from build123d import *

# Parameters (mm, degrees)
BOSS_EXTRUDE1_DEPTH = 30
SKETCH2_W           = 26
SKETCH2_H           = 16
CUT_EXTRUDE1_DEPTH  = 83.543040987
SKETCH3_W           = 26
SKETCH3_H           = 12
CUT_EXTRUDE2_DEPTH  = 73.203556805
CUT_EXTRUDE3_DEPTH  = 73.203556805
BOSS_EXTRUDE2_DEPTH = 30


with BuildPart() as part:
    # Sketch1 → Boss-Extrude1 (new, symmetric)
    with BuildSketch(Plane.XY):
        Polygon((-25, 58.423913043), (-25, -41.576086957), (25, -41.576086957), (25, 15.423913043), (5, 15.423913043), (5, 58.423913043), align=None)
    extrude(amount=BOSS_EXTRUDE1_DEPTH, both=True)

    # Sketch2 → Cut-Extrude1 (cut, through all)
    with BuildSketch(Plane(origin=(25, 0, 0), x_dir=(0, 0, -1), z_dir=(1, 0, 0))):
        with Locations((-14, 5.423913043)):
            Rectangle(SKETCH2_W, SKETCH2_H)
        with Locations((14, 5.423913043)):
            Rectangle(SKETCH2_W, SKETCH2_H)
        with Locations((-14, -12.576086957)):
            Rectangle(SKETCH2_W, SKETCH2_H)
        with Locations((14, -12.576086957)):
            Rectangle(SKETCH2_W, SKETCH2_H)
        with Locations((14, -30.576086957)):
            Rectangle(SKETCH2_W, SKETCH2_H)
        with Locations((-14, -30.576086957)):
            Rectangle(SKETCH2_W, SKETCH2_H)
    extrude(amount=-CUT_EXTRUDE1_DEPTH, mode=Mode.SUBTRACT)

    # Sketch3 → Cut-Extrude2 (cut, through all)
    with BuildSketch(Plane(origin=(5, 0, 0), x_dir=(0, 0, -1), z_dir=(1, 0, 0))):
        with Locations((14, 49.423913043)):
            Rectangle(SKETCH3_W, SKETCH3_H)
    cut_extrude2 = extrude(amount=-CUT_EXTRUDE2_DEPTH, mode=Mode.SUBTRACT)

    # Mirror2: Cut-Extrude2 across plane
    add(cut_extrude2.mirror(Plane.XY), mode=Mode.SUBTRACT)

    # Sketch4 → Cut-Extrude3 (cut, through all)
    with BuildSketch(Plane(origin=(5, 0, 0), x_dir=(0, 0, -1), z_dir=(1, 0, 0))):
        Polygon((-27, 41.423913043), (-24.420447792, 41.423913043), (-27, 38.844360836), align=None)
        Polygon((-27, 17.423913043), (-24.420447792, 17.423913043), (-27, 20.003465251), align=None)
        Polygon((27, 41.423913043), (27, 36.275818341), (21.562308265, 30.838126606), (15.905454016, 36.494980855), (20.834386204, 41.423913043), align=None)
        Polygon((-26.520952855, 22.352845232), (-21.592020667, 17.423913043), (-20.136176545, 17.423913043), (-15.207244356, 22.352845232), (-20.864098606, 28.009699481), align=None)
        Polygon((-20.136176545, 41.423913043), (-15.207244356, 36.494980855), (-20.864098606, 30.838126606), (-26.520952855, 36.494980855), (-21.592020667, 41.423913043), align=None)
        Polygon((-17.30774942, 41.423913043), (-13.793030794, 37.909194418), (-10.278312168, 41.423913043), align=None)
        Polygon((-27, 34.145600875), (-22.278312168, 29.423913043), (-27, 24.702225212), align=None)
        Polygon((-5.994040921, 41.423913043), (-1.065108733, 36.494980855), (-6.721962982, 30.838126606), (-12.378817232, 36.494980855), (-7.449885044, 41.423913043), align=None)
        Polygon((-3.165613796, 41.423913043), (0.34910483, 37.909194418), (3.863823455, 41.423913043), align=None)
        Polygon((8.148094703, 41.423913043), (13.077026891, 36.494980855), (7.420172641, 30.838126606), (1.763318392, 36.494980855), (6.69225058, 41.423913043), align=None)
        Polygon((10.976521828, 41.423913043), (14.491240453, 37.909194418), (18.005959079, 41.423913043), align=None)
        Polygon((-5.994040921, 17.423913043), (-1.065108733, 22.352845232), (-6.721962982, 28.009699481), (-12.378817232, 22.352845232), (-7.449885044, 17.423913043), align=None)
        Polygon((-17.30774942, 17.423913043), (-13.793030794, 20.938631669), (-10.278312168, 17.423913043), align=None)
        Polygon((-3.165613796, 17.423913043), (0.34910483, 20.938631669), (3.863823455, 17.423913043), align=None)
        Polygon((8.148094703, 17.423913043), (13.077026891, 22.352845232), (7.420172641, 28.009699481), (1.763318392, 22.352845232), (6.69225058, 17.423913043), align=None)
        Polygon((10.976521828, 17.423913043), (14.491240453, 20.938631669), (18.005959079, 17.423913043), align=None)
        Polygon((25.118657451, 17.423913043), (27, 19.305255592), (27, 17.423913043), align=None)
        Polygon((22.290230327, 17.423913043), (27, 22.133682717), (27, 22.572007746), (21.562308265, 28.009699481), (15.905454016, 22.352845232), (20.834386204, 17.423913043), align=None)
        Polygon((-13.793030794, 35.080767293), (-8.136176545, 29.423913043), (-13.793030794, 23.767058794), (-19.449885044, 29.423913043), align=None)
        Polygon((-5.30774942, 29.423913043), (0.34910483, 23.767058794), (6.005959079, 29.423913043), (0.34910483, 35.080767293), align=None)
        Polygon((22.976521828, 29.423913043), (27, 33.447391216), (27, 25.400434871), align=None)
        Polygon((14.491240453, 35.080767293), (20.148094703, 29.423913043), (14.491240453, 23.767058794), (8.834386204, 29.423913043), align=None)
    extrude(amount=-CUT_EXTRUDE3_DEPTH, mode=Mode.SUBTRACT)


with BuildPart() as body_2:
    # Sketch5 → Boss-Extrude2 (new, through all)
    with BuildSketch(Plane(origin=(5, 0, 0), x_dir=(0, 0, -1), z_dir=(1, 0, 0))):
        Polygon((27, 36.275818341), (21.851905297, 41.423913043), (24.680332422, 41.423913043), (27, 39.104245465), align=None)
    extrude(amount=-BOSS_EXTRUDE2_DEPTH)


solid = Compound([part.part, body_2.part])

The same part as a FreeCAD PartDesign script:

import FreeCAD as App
import Part
import Sketcher

V = App.Vector

doc = App.newDocument("Part")
body = doc.addObject("PartDesign::Body", "Body")

# Sketch on XY plane
sketch1 = body.newObject("Sketcher::SketchObject", "Sketch")
sketch1.AttachmentSupport = (doc.getObject("XY_Plane"), [""])
sketch1.MapMode = "FlatFace"
sketch1.addGeometry([
    Part.LineSegment(V(-25, 58, 0), V(-25, -42, 0)),  # 0
    Part.LineSegment(V(-25, -42, 0), V(25, -42, 0)),  # 1
    Part.LineSegment(V(25, -42, 0), V(25, 15, 0)),  # 2
    Part.LineSegment(V(25, 15, 0), V(5, 15, 0)),  # 3
    Part.LineSegment(V(5, 15, 0), V(5, 58, 0)),  # 4
    Part.LineSegment(V(5, 58, 0), V(-25, 58, 0)),  # 5
], False)
sketch1.addConstraint([
    Sketcher.Constraint("Coincident", 0, 2, 1, 1),
    Sketcher.Constraint("Coincident", 1, 2, 2, 1),
    Sketcher.Constraint("Coincident", 2, 2, 3, 1),
    Sketcher.Constraint("Coincident", 3, 2, 4, 1),
    Sketcher.Constraint("Coincident", 4, 2, 5, 1),
    Sketcher.Constraint("Coincident", 5, 2, 0, 1),
    Sketcher.Constraint("Vertical", 0),
    Sketcher.Constraint("Horizontal", 1),
    Sketcher.Constraint("Vertical", 2),
    Sketcher.Constraint("Horizontal", 3),
    Sketcher.Constraint("Vertical", 4),
    Sketcher.Constraint("Horizontal", 5),
    Sketcher.Constraint("DistanceX", 1, 1, 1, 2, 50.0),
    Sketcher.Constraint("DistanceX", 3, 2, 3, 1, 20.0),
    Sketcher.Constraint("DistanceY", 0, 2, 0, 1, 100.0),
    Sketcher.Constraint("DistanceY", 2, 1, 2, 2, 57.0),
    Sketcher.Constraint("DistanceX", 0, 2, -1, 1, 25.0),
    Sketcher.Constraint("DistanceY", 0, 2, -1, 1, 41.576087),
])
pad1 = body.newObject("PartDesign::Pad", "Pad")
pad1.Profile = sketch1
pad1.Length = 60
pad1.Midplane = True

# Sketch on YZ plane
sketch2 = body.newObject("Sketcher::SketchObject", "Sketch001")
sketch2.AttachmentSupport = (doc.getObject("YZ_Plane"), [""])
sketch2.MapMode = "FlatFace"
sketch2.AttachmentOffset = App.Placement(V(0, 0, 25), App.Rotation())
sketch2.addGeometry([
    Part.LineSegment(V(13, 27, 0), V(-3, 27, 0)),  # 0
    Part.LineSegment(V(-3, 27, 0), V(-3, 1, 0)),  # 1
    Part.LineSegment(V(-3, 1, 0), V(13, 1, 0)),  # 2
    Part.LineSegment(V(13, 1, 0), V(13, 27, 0)),  # 3
    Part.LineSegment(V(13, -1, 0), V(-3, -1, 0)),  # 4
    Part.LineSegment(V(-3, -1, 0), V(-3, -27, 0)),  # 5
    Part.LineSegment(V(-3, -27, 0), V(13, -27, 0)),  # 6
    Part.LineSegment(V(13, -27, 0), V(13, -1, 0)),  # 7
    Part.LineSegment(V(-5, 27, 0), V(-21, 27, 0)),  # 8
    Part.LineSegment(V(-21, 27, 0), V(-21, 1, 0)),  # 9
    Part.LineSegment(V(-21, 1, 0), V(-5, 1, 0)),  # 10
    Part.LineSegment(V(-5, 1, 0), V(-5, 27, 0)),  # 11
    Part.LineSegment(V(-5, -1, 0), V(-21, -1, 0)),  # 12
    Part.LineSegment(V(-21, -1, 0), V(-21, -27, 0)),  # 13
    Part.LineSegment(V(-21, -27, 0), V(-5, -27, 0)),  # 14
    Part.LineSegment(V(-5, -27, 0), V(-5, -1, 0)),  # 15
    Part.LineSegment(V(-23, -1, 0), V(-39, -1, 0)),  # 16
    Part.LineSegment(V(-39, -1, 0), V(-39, -27, 0)),  # 17
    Part.LineSegment(V(-39, -27, 0), V(-23, -27, 0)),  # 18
    Part.LineSegment(V(-23, -27, 0), V(-23, -1, 0)),  # 19
    Part.LineSegment(V(-23, 27, 0), V(-39, 27, 0)),  # 20
    Part.LineSegment(V(-39, 27, 0), V(-39, 1, 0)),  # 21
    Part.LineSegment(V(-39, 1, 0), V(-23, 1, 0)),  # 22
    Part.LineSegment(V(-23, 1, 0), V(-23, 27, 0)),  # 23
], False)
sketch2.addConstraint([
    Sketcher.Constraint("Coincident", 0, 2, 1, 1),
    Sketcher.Constraint("Coincident", 1, 2, 2, 1),
    Sketcher.Constraint("Coincident", 2, 2, 3, 1),
    Sketcher.Constraint("Coincident", 3, 2, 0, 1),
    Sketcher.Constraint("Coincident", 4, 2, 5, 1),
    Sketcher.Constraint("Coincident", 5, 2, 6, 1),
    Sketcher.Constraint("Coincident", 6, 2, 7, 1),
    Sketcher.Constraint("Coincident", 7, 2, 4, 1),
    Sketcher.Constraint("Coincident", 8, 2, 9, 1),
    Sketcher.Constraint("Coincident", 9, 2, 10, 1),
    Sketcher.Constraint("Coincident", 10, 2, 11, 1),
    Sketcher.Constraint("Coincident", 11, 2, 8, 1),
    Sketcher.Constraint("Coincident", 12, 2, 13, 1),
    Sketcher.Constraint("Coincident", 13, 2, 14, 1),
    Sketcher.Constraint("Coincident", 14, 2, 15, 1),
    Sketcher.Constraint("Coincident", 15, 2, 12, 1),
    Sketcher.Constraint("Coincident", 16, 2, 17, 1),
    Sketcher.Constraint("Coincident", 17, 2, 18, 1),
    Sketcher.Constraint("Coincident", 18, 2, 19, 1),
    Sketcher.Constraint("Coincident", 19, 2, 16, 1),
    Sketcher.Constraint("Coincident", 20, 2, 21, 1),
    Sketcher.Constraint("Coincident", 21, 2, 22, 1),
    Sketcher.Constraint("Coincident", 22, 2, 23, 1),
    Sketcher.Constraint("Coincident", 23, 2, 20, 1),
    Sketcher.Constraint("Horizontal", 0),
    Sketcher.Constraint("Vertical", 1),
    Sketcher.Constraint("Horizontal", 2),
    Sketcher.Constraint("Vertical", 3),
    Sketcher.Constraint("Horizontal", 4),
    Sketcher.Constraint("Vertical", 5),
    Sketcher.Constraint("Horizontal", 6),
    Sketcher.Constraint("Vertical", 7),
    Sketcher.Constraint("Horizontal", 8),
    Sketcher.Constraint("Vertical", 9),
    Sketcher.Constraint("Horizontal", 10),
    Sketcher.Constraint("Vertical", 11),
    Sketcher.Constraint("Horizontal", 12),
    Sketcher.Constraint("Vertical", 13),
    Sketcher.Constraint("Horizontal", 14),
    Sketcher.Constraint("Vertical", 15),
    Sketcher.Constraint("Horizontal", 16),
    Sketcher.Constraint("Vertical", 17),
    Sketcher.Constraint("Horizontal", 18),
    Sketcher.Constraint("Vertical", 19),
    Sketcher.Constraint("Horizontal", 20),
    Sketcher.Constraint("Vertical", 21),
    Sketcher.Constraint("Horizontal", 22),
    Sketcher.Constraint("Vertical", 23),
    Sketcher.Constraint("Symmetric", 1, 2, 4, 2, -1),
    Sketcher.Constraint("Symmetric", 3, 2, 6, 2, -1),
    Sketcher.Constraint("Symmetric", 9, 2, 12, 2, -1),
    Sketcher.Constraint("Symmetric", 11, 2, 14, 2, -1),
    Sketcher.Constraint("Symmetric", 17, 2, 20, 2, -1),
    Sketcher.Constraint("Symmetric", 19, 2, 22, 2, -1),
    Sketcher.Constraint("Horizontal", 3, 2, 8, 2),
    Sketcher.Constraint("Horizontal", 2, 2, 9, 2),
    Sketcher.Constraint("Horizontal", 15, 2, 16, 2),
    Sketcher.Constraint("Horizontal", 14, 2, 17, 2),
    Sketcher.Constraint("Equal", 6, 8),
    Sketcher.Constraint("Equal", 14, 16),
    Sketcher.Constraint("DistanceX", 0, 2, 0, 1, 16.0),
    Sketcher.Constraint("DistanceY", 1, 2, 1, 1, 26.0),
    Sketcher.Constraint("DistanceY", -1, 1, 0, 2, 27.0),
    Sketcher.Constraint("DistanceX", 8, 2, 0, 2, 18.0),
    Sketcher.Constraint("DistanceX", 16, 2, 12, 2, 18.0),
    Sketcher.Constraint("DistanceX", 0, 2, -1, 1, 2.576087),
])
pocket1 = body.newObject("PartDesign::Pocket", "Pocket")
pocket1.Profile = sketch2
pocket1.Type = "ThroughAll"

# Sketch on YZ plane
sketch3 = body.newObject("Sketcher::SketchObject", "Sketch002")
sketch3.AttachmentSupport = (doc.getObject("YZ_Plane"), [""])
sketch3.MapMode = "FlatFace"
sketch3.AttachmentOffset = App.Placement(V(0, 0, 5), App.Rotation())
sketch3.addGeometry([
    Part.LineSegment(V(55, -1, 0), V(43, -1, 0)),
    Part.LineSegment(V(43, -1, 0), V(43, -27, 0)),
    Part.LineSegment(V(43, -27, 0), V(55, -27, 0)),
    Part.LineSegment(V(55, -27, 0), V(55, -1, 0)),
], False)
sketch3.addConstraint([
    Sketcher.Constraint("Coincident", 0, 2, 1, 1),
    Sketcher.Constraint("Coincident", 1, 2, 2, 1),
    Sketcher.Constraint("Coincident", 2, 2, 3, 1),
    Sketcher.Constraint("Coincident", 3, 2, 0, 1),
    Sketcher.Constraint("Horizontal", 0),
    Sketcher.Constraint("Vertical", 1),
    Sketcher.Constraint("Horizontal", 2),
    Sketcher.Constraint("Vertical", 3),
    Sketcher.Constraint("DistanceX", 0, 2, 0, 1, 12.0),
    Sketcher.Constraint("DistanceY", 1, 2, 1, 1, 26.0),
    Sketcher.Constraint("DistanceY", 0, 2, -1, 1, 1.0),
    Sketcher.Constraint("DistanceX", -1, 1, 0, 2, 43.423913),
])
pocket2 = body.newObject("PartDesign::Pocket", "Pocket001")
pocket2.Profile = sketch3
pocket2.Type = "ThroughAll"
doc.recompute()

mirrored = body.newObject("PartDesign::Mirrored", "Mirrored")
mirrored.Originals = [pocket2]
mirrored.MirrorPlane = (doc.getObject("XY_Plane"), [""])
body.Tip = mirrored

# Sketch on YZ plane
sketch4 = body.newObject("Sketcher::SketchObject", "Sketch003")
sketch4.AttachmentSupport = (doc.getObject("YZ_Plane"), [""])
sketch4.MapMode = "FlatFace"
sketch4.AttachmentOffset = App.Placement(V(0, 0, 5), App.Rotation())
sketch4.addGeometry([
    Part.LineSegment(V(41.42, 24.42, 0), V(41.42, 27, 0)),  # 0
    Part.LineSegment(V(41.42, 27, 0), V(38.84, 27, 0)),  # 1
    Part.LineSegment(V(38.84, 27, 0), V(41.42, 24.42, 0)),  # 2
    Part.LineSegment(V(17.42, 27, 0), V(17.42, 24.42, 0)),  # 3
    Part.LineSegment(V(17.42, 24.42, 0), V(20, 27, 0)),  # 4
    Part.LineSegment(V(20, 27, 0), V(17.42, 27, 0)),  # 5
    Part.LineSegment(V(36.28, -27, 0), V(41.42, -27, 0)),  # 6
    Part.LineSegment(V(41.42, -27, 0), V(41.42, -20.83, 0)),  # 7
    Part.LineSegment(V(41.42, -20.83, 0), V(36.49, -15.91, 0)),  # 8
    Part.LineSegment(V(36.49, -15.91, 0), V(30.84, -21.56, 0)),  # 9
    Part.LineSegment(V(30.84, -21.56, 0), V(36.28, -27, 0)),  # 10
    Part.LineSegment(V(22.35, 26.52, 0), V(17.42, 21.59, 0)),  # 11
    Part.LineSegment(V(17.42, 21.59, 0), V(17.42, 20.14, 0)),  # 12
    Part.LineSegment(V(17.42, 20.14, 0), V(22.35, 15.21, 0)),  # 13
    Part.LineSegment(V(22.35, 15.21, 0), V(28.01, 20.86, 0)),  # 14
    Part.LineSegment(V(28.01, 20.86, 0), V(22.35, 26.52, 0)),  # 15
    Part.LineSegment(V(36.49, 15.21, 0), V(41.42, 20.14, 0)),  # 16
    Part.LineSegment(V(41.42, 20.14, 0), V(41.42, 21.59, 0)),  # 17
    Part.LineSegment(V(41.42, 21.59, 0), V(36.49, 26.52, 0)),  # 18
    Part.LineSegment(V(36.49, 26.52, 0), V(30.84, 20.86, 0)),  # 19
    Part.LineSegment(V(30.84, 20.86, 0), V(36.49, 15.21, 0)),  # 20
    Part.LineSegment(V(41.42, 17.31, 0), V(37.91, 13.79, 0)),  # 21
    Part.LineSegment(V(37.91, 13.79, 0), V(41.42, 10.28, 0)),  # 22
    Part.LineSegment(V(41.42, 10.28, 0), V(41.42, 17.31, 0)),  # 23
    Part.LineSegment(V(29.42, 22.28, 0), V(34.15, 27, 0)),  # 24
    Part.LineSegment(V(34.15, 27, 0), V(24.7, 27, 0)),  # 25
    Part.LineSegment(V(24.7, 27, 0), V(29.42, 22.28, 0)),  # 26
    Part.LineSegment(V(36.49, 1.07, 0), V(41.42, 5.99, 0)),  # 27
    Part.LineSegment(V(41.42, 5.99, 0), V(41.42, 7.45, 0)),  # 28
    Part.LineSegment(V(41.42, 7.45, 0), V(36.49, 12.38, 0)),  # 29
    Part.LineSegment(V(36.49, 12.38, 0), V(30.84, 6.72, 0)),  # 30
    Part.LineSegment(V(30.84, 6.72, 0), V(36.49, 1.07, 0)),  # 31
    Part.LineSegment(V(41.42, 3.17, 0), V(37.91, -0.35, 0)),  # 32
    Part.LineSegment(V(37.91, -0.35, 0), V(41.42, -3.86, 0)),  # 33
    Part.LineSegment(V(41.42, -3.86, 0), V(41.42, 3.17, 0)),  # 34
    Part.LineSegment(V(36.49, -13.08, 0), V(41.42, -8.15, 0)),  # 35
    Part.LineSegment(V(41.42, -8.15, 0), V(41.42, -6.69, 0)),  # 36
    Part.LineSegment(V(41.42, -6.69, 0), V(36.49, -1.76, 0)),  # 37
    Part.LineSegment(V(36.49, -1.76, 0), V(30.84, -7.42, 0)),  # 38
    Part.LineSegment(V(30.84, -7.42, 0), V(36.49, -13.08, 0)),  # 39
    Part.LineSegment(V(41.42, -10.98, 0), V(37.91, -14.49, 0)),  # 40
    Part.LineSegment(V(37.91, -14.49, 0), V(41.42, -18.01, 0)),  # 41
    Part.LineSegment(V(41.42, -18.01, 0), V(41.42, -10.98, 0)),  # 42
    Part.LineSegment(V(17.42, 5.99, 0), V(22.35, 1.07, 0)),  # 43
    Part.LineSegment(V(22.35, 1.07, 0), V(28.01, 6.72, 0)),  # 44
    Part.LineSegment(V(28.01, 6.72, 0), V(22.35, 12.38, 0)),  # 45
    Part.LineSegment(V(22.35, 12.38, 0), V(17.42, 7.45, 0)),  # 46
    Part.LineSegment(V(17.42, 7.45, 0), V(17.42, 5.99, 0)),  # 47
    Part.LineSegment(V(20.94, 13.79, 0), V(17.42, 17.31, 0)),  # 48
    Part.LineSegment(V(17.42, 17.31, 0), V(17.42, 10.28, 0)),  # 49
    Part.LineSegment(V(17.42, 10.28, 0), V(20.94, 13.79, 0)),  # 50
    Part.LineSegment(V(20.94, -0.35, 0), V(17.42, 3.17, 0)),  # 51
    Part.LineSegment(V(17.42, 3.17, 0), V(17.42, -3.86, 0)),  # 52
    Part.LineSegment(V(17.42, -3.86, 0), V(20.94, -0.35, 0)),  # 53
    Part.LineSegment(V(17.42, -8.15, 0), V(22.35, -13.08, 0)),  # 54
    Part.LineSegment(V(22.35, -13.08, 0), V(28.01, -7.42, 0)),  # 55
    Part.LineSegment(V(28.01, -7.42, 0), V(22.35, -1.76, 0)),  # 56
    Part.LineSegment(V(22.35, -1.76, 0), V(17.42, -6.69, 0)),  # 57
    Part.LineSegment(V(17.42, -6.69, 0), V(17.42, -8.15, 0)),  # 58
    Part.LineSegment(V(20.94, -14.49, 0), V(17.42, -10.98, 0)),  # 59
    Part.LineSegment(V(17.42, -10.98, 0), V(17.42, -18.01, 0)),  # 60
    Part.LineSegment(V(17.42, -18.01, 0), V(20.94, -14.49, 0)),  # 61
    Part.LineSegment(V(19.31, -27, 0), V(17.42, -25.12, 0)),  # 62
    Part.LineSegment(V(17.42, -25.12, 0), V(17.42, -27, 0)),  # 63
    Part.LineSegment(V(17.42, -27, 0), V(19.31, -27, 0)),  # 64
    Part.LineSegment(V(17.42, -22.29, 0), V(22.13, -27, 0)),  # 65
    Part.LineSegment(V(22.13, -27, 0), V(22.57, -27, 0)),  # 66
    Part.LineSegment(V(22.57, -27, 0), V(28.01, -21.56, 0)),  # 67
    Part.LineSegment(V(28.01, -21.56, 0), V(22.35, -15.91, 0)),  # 68
    Part.LineSegment(V(22.35, -15.91, 0), V(17.42, -20.83, 0)),  # 69
    Part.LineSegment(V(17.42, -20.83, 0), V(17.42, -22.29, 0)),  # 70
    Part.LineSegment(V(29.42, 8.14, 0), V(35.08, 13.79, 0)),  # 71
    Part.LineSegment(V(35.08, 13.79, 0), V(29.42, 19.45, 0)),  # 72
    Part.LineSegment(V(29.42, 19.45, 0), V(23.77, 13.79, 0)),  # 73
    Part.LineSegment(V(23.77, 13.79, 0), V(29.42, 8.14, 0)),  # 74
    Part.LineSegment(V(29.42, 5.31, 0), V(23.77, -0.35, 0)),  # 75
    Part.LineSegment(V(23.77, -0.35, 0), V(29.42, -6.01, 0)),  # 76
    Part.LineSegment(V(29.42, -6.01, 0), V(35.08, -0.35, 0)),  # 77
    Part.LineSegment(V(35.08, -0.35, 0), V(29.42, 5.31, 0)),  # 78
    Part.LineSegment(V(33.45, -27, 0), V(29.42, -22.98, 0)),  # 79
    Part.LineSegment(V(29.42, -22.98, 0), V(25.4, -27, 0)),  # 80
    Part.LineSegment(V(25.4, -27, 0), V(33.45, -27, 0)),  # 81
    Part.LineSegment(V(29.42, -20.15, 0), V(35.08, -14.49, 0)),  # 82
    Part.LineSegment(V(35.08, -14.49, 0), V(29.42, -8.83, 0)),  # 83
    Part.LineSegment(V(29.42, -8.83, 0), V(23.77, -14.49, 0)),  # 84
    Part.LineSegment(V(23.77, -14.49, 0), V(29.42, -20.15, 0)),  # 85
], False)
sketch4.addConstraint([
    Sketcher.Constraint("Coincident", 0, 2, 1, 1),
    Sketcher.Constraint("Coincident", 1, 2, 2, 1),
    Sketcher.Constraint("Coincident", 2, 2, 0, 1),
    Sketcher.Constraint("Coincident", 3, 2, 4, 1),
    Sketcher.Constraint("Coincident", 4, 2, 5, 1),
    Sketcher.Constraint("Coincident", 5, 2, 3, 1),
    Sketcher.Constraint("Coincident", 6, 2, 7, 1),
    Sketcher.Constraint("Coincident", 7, 2, 8, 1),
    Sketcher.Constraint("Coincident", 8, 2, 9, 1),
    Sketcher.Constraint("Coincident", 9, 2, 10, 1),
    Sketcher.Constraint("Coincident", 10, 2, 6, 1),
    Sketcher.Constraint("Coincident", 11, 2, 12, 1),
    Sketcher.Constraint("Coincident", 12, 2, 13, 1),
    Sketcher.Constraint("Coincident", 13, 2, 14, 1),
    Sketcher.Constraint("Coincident", 14, 2, 15, 1),
    Sketcher.Constraint("Coincident", 15, 2, 11, 1),
    Sketcher.Constraint("Coincident", 16, 2, 17, 1),
    Sketcher.Constraint("Coincident", 17, 2, 18, 1),
    Sketcher.Constraint("Coincident", 18, 2, 19, 1),
    Sketcher.Constraint("Coincident", 19, 2, 20, 1),
    Sketcher.Constraint("Coincident", 20, 2, 16, 1),
    Sketcher.Constraint("Coincident", 21, 2, 22, 1),
    Sketcher.Constraint("Coincident", 22, 2, 23, 1),
    Sketcher.Constraint("Coincident", 23, 2, 21, 1),
    Sketcher.Constraint("Coincident", 24, 2, 25, 1),
    Sketcher.Constraint("Coincident", 25, 2, 26, 1),
    Sketcher.Constraint("Coincident", 26, 2, 24, 1),
    Sketcher.Constraint("Coincident", 27, 2, 28, 1),
    Sketcher.Constraint("Coincident", 28, 2, 29, 1),
    Sketcher.Constraint("Coincident", 29, 2, 30, 1),
    Sketcher.Constraint("Coincident", 30, 2, 31, 1),
    Sketcher.Constraint("Coincident", 31, 2, 27, 1),
    Sketcher.Constraint("Coincident", 32, 2, 33, 1),
    Sketcher.Constraint("Coincident", 33, 2, 34, 1),
    Sketcher.Constraint("Coincident", 34, 2, 32, 1),
    Sketcher.Constraint("Coincident", 35, 2, 36, 1),
    Sketcher.Constraint("Coincident", 36, 2, 37, 1),
    Sketcher.Constraint("Coincident", 37, 2, 38, 1),
    Sketcher.Constraint("Coincident", 38, 2, 39, 1),
    Sketcher.Constraint("Coincident", 39, 2, 35, 1),
    Sketcher.Constraint("Coincident", 40, 2, 41, 1),
    Sketcher.Constraint("Coincident", 41, 2, 42, 1),
    Sketcher.Constraint("Coincident", 42, 2, 40, 1),
    Sketcher.Constraint("Coincident", 43, 2, 44, 1),
    Sketcher.Constraint("Coincident", 44, 2, 45, 1),
    Sketcher.Constraint("Coincident", 45, 2, 46, 1),
    Sketcher.Constraint("Coincident", 46, 2, 47, 1),
    Sketcher.Constraint("Coincident", 47, 2, 43, 1),
    Sketcher.Constraint("Coincident", 48, 2, 49, 1),
    Sketcher.Constraint("Coincident", 49, 2, 50, 1),
    Sketcher.Constraint("Coincident", 50, 2, 48, 1),
    Sketcher.Constraint("Coincident", 51, 2, 52, 1),
    Sketcher.Constraint("Coincident", 52, 2, 53, 1),
    Sketcher.Constraint("Coincident", 53, 2, 51, 1),
    Sketcher.Constraint("Coincident", 54, 2, 55, 1),
    Sketcher.Constraint("Coincident", 55, 2, 56, 1),
    Sketcher.Constraint("Coincident", 56, 2, 57, 1),
    Sketcher.Constraint("Coincident", 57, 2, 58, 1),
    Sketcher.Constraint("Coincident", 58, 2, 54, 1),
    Sketcher.Constraint("Coincident", 59, 2, 60, 1),
    Sketcher.Constraint("Coincident", 60, 2, 61, 1),
    Sketcher.Constraint("Coincident", 61, 2, 59, 1),
    Sketcher.Constraint("Coincident", 62, 2, 63, 1),
    Sketcher.Constraint("Coincident", 63, 2, 64, 1),
    Sketcher.Constraint("Coincident", 64, 2, 62, 1),
    Sketcher.Constraint("Coincident", 65, 2, 66, 1),
    Sketcher.Constraint("Coincident", 66, 2, 67, 1),
    Sketcher.Constraint("Coincident", 67, 2, 68, 1),
    Sketcher.Constraint("Coincident", 68, 2, 69, 1),
    Sketcher.Constraint("Coincident", 69, 2, 70, 1),
    Sketcher.Constraint("Coincident", 70, 2, 65, 1),
    Sketcher.Constraint("Coincident", 71, 2, 72, 1),
    Sketcher.Constraint("Coincident", 72, 2, 73, 1),
    Sketcher.Constraint("Coincident", 73, 2, 74, 1),
    Sketcher.Constraint("Coincident", 74, 2, 71, 1),
    Sketcher.Constraint("Coincident", 75, 2, 76, 1),
    Sketcher.Constraint("Coincident", 76, 2, 77, 1),
    Sketcher.Constraint("Coincident", 77, 2, 78, 1),
    Sketcher.Constraint("Coincident", 78, 2, 75, 1),
    Sketcher.Constraint("Coincident", 79, 2, 80, 1),
    Sketcher.Constraint("Coincident", 80, 2, 81, 1),
    Sketcher.Constraint("Coincident", 81, 2, 79, 1),
    Sketcher.Constraint("Coincident", 82, 2, 83, 1),
    Sketcher.Constraint("Coincident", 83, 2, 84, 1),
    Sketcher.Constraint("Coincident", 84, 2, 85, 1),
    Sketcher.Constraint("Coincident", 85, 2, 82, 1),
    Sketcher.Constraint("Vertical", 0),
    Sketcher.Constraint("Horizontal", 1),
    Sketcher.Constraint("Vertical", 3),
    Sketcher.Constraint("Horizontal", 5),
    Sketcher.Constraint("Horizontal", 6),
    Sketcher.Constraint("Vertical", 7),
    Sketcher.Constraint("Vertical", 12),
    Sketcher.Constraint("Vertical", 17),
    Sketcher.Constraint("Vertical", 23),
    Sketcher.Constraint("Horizontal", 25),
    Sketcher.Constraint("Vertical", 28),
    Sketcher.Constraint("Vertical", 34),
    Sketcher.Constraint("Vertical", 36),
    Sketcher.Constraint("Vertical", 42),
    Sketcher.Constraint("Vertical", 47),
    Sketcher.Constraint("Vertical", 49),
    Sketcher.Constraint("Vertical", 52),
    Sketcher.Constraint("Vertical", 58),
    Sketcher.Constraint("Vertical", 60),
    Sketcher.Constraint("Vertical", 63),
    Sketcher.Constraint("Horizontal", 64),
    Sketcher.Constraint("Horizontal", 66),
    Sketcher.Constraint("Vertical", 70),
    Sketcher.Constraint("Horizontal", 81),
    Sketcher.Constraint("Symmetric", 0, 2, 6, 2, -1),
    Sketcher.Constraint("Symmetric", 5, 2, 63, 2, -1),
    Sketcher.Constraint("Perpendicular", 2, 4),
    Sketcher.Constraint("Perpendicular", 4, 8),
    Sketcher.Constraint("Perpendicular", 8, 9),
    Sketcher.Constraint("Perpendicular", 9, 10),
    Sketcher.Constraint("Perpendicular", 10, 11),
    Sketcher.Constraint("Perpendicular", 11, 13),
    Sketcher.Constraint("Perpendicular", 13, 14),
    Sketcher.Constraint("Perpendicular", 14, 15),
    Sketcher.Constraint("Perpendicular", 15, 16),
    Sketcher.Constraint("Perpendicular", 16, 18),
    Sketcher.Constraint("Perpendicular", 18, 19),
    Sketcher.Constraint("Perpendicular", 19, 20),
    Sketcher.Constraint("Perpendicular", 20, 21),
    Sketcher.Constraint("Perpendicular", 21, 22),
    Sketcher.Constraint("Perpendicular", 22, 24),
    Sketcher.Constraint("Perpendicular", 24, 26),
    Sketcher.Constraint("Perpendicular", 26, 27),
    Sketcher.Constraint("Perpendicular", 27, 29),
    Sketcher.Constraint("Perpendicular", 29, 30),
    Sketcher.Constraint("Perpendicular", 30, 31),
    Sketcher.Constraint("Perpendicular", 31, 32),
    Sketcher.Constraint("Perpendicular", 32, 33),
    Sketcher.Constraint("Perpendicular", 33, 35),
    Sketcher.Constraint("Perpendicular", 35, 37),
    Sketcher.Constraint("Perpendicular", 37, 38),
    Sketcher.Constraint("Perpendicular", 38, 39),
    Sketcher.Constraint("Perpendicular", 39, 40),
    Sketcher.Constraint("Perpendicular", 40, 41),
    Sketcher.Constraint("Parallel", 41, 43),
    Sketcher.Constraint("Perpendicular", 43, 44),
    Sketcher.Constraint("Perpendicular", 44, 45),
    Sketcher.Constraint("Perpendicular", 45, 46),
    Sketcher.Constraint("Perpendicular", 46, 48),
    Sketcher.Constraint("Perpendicular", 48, 50),
    Sketcher.Constraint("Perpendicular", 50, 51),
    Sketcher.Constraint("Perpendicular", 51, 53),
    Sketcher.Constraint("Perpendicular", 53, 54),
    Sketcher.Constraint("Perpendicular", 54, 55),
    Sketcher.Constraint("Perpendicular", 55, 56),
    Sketcher.Constraint("Perpendicular", 56, 57),
    Sketcher.Constraint("Perpendicular", 57, 59),
    Sketcher.Constraint("Perpendicular", 59, 61),
    Sketcher.Constraint("Perpendicular", 61, 62),
    Sketcher.Constraint("Parallel", 62, 65),
    Sketcher.Constraint("Perpendicular", 65, 67),
    Sketcher.Constraint("Perpendicular", 67, 68),
    Sketcher.Constraint("Perpendicular", 68, 69),
    Sketcher.Constraint("Parallel", 69, 71),
    Sketcher.Constraint("Perpendicular", 71, 72),
    Sketcher.Constraint("Perpendicular", 72, 73),
    Sketcher.Constraint("Perpendicular", 73, 74),
    Sketcher.Constraint("Perpendicular", 74, 75),
    Sketcher.Constraint("Perpendicular", 75, 76),
    Sketcher.Constraint("Perpendicular", 76, 77),
    Sketcher.Constraint("Perpendicular", 77, 78),
    Sketcher.Constraint("Parallel", 78, 79),
    Sketcher.Constraint("Perpendicular", 79, 80),
    Sketcher.Constraint("Parallel", 80, 82),
    Sketcher.Constraint("Perpendicular", 82, 83),
    Sketcher.Constraint("Perpendicular", 83, 84),
    Sketcher.Constraint("Perpendicular", 84, 85),
    Sketcher.Constraint("Horizontal", 2, 2, 3, 2),
    Sketcher.Constraint("Horizontal", 1, 2, 4, 2),
    Sketcher.Constraint("Horizontal", 12, 2, 16, 2),
    Sketcher.Constraint("Horizontal", 11, 2, 17, 2),
    Sketcher.Constraint("Horizontal", 15, 2, 18, 2),
    Sketcher.Constraint("Horizontal", 14, 2, 19, 2),
    Sketcher.Constraint("Horizontal", 13, 2, 20, 2),
    Sketcher.Constraint("Horizontal", 5, 2, 24, 2),
    Sketcher.Constraint("Horizontal", 31, 2, 43, 2),
    Sketcher.Constraint("Horizontal", 30, 2, 44, 2),
    Sketcher.Constraint("Horizontal", 29, 2, 45, 2),
    Sketcher.Constraint("Horizontal", 28, 2, 46, 2),
    Sketcher.Constraint("Horizontal", 23, 2, 48, 2),
    Sketcher.Constraint("Horizontal", 22, 2, 49, 2),
    Sketcher.Constraint("Horizontal", 34, 2, 51, 2),
    Sketcher.Constraint("Horizontal", 33, 2, 52, 2),
    Sketcher.Constraint("Horizontal", 39, 2, 54, 2),
    Sketcher.Constraint("Horizontal", 38, 2, 55, 2),
    Sketcher.Constraint("Horizontal", 37, 2, 56, 2),
    Sketcher.Constraint("Horizontal", 36, 2, 57, 2),
    Sketcher.Constraint("Horizontal", 42, 2, 59, 2),
    Sketcher.Constraint("Horizontal", 41, 2, 60, 2),
    Sketcher.Constraint("Horizontal", 64, 2, 65, 2),
    Sketcher.Constraint("Horizontal", 9, 2, 67, 2),
    Sketcher.Constraint("Horizontal", 8, 2, 68, 2),
    Sketcher.Constraint("Horizontal", 7, 2, 69, 2),
    Sketcher.Constraint("Horizontal", 50, 2, 71, 2),
    Sketcher.Constraint("Horizontal", 71, 2, 73, 2),
    Sketcher.Constraint("Horizontal", 53, 2, 75, 2),
    Sketcher.Constraint("Horizontal", 75, 2, 77, 2),
    Sketcher.Constraint("Horizontal", 66, 2, 80, 2),
    Sketcher.Constraint("Horizontal", 61, 2, 82, 2),
    Sketcher.Constraint("Horizontal", 82, 2, 84, 2),
    Sketcher.Constraint("Vertical", 5, 2, 11, 2),
    Sketcher.Constraint("Vertical", 13, 2, 15, 2),
    Sketcher.Constraint("Vertical", 7, 2, 16, 2),
    Sketcher.Constraint("Vertical", 8, 2, 18, 2),
    Sketcher.Constraint("Vertical", 9, 2, 19, 2),
    Sketcher.Constraint("Vertical", 17, 2, 22, 2),
    Sketcher.Constraint("Vertical", 23, 2, 27, 2),
    Sketcher.Constraint("Vertical", 20, 2, 29, 2),
    Sketcher.Constraint("Vertical", 19, 2, 30, 2),
    Sketcher.Constraint("Vertical", 29, 2, 31, 2),
    Sketcher.Constraint("Vertical", 21, 2, 32, 2),
    Sketcher.Constraint("Vertical", 28, 2, 33, 2),
    Sketcher.Constraint("Vertical", 34, 2, 35, 2),
    Sketcher.Constraint("Vertical", 31, 2, 37, 2),
    Sketcher.Constraint("Vertical", 30, 2, 38, 2),
    Sketcher.Constraint("Vertical", 37, 2, 39, 2),
    Sketcher.Constraint("Vertical", 32, 2, 40, 2),
    Sketcher.Constraint("Vertical", 36, 2, 41, 2),
    Sketcher.Constraint("Vertical", 15, 2, 43, 2),
    Sketcher.Constraint("Vertical", 47, 2, 48, 2),
    Sketcher.Constraint("Vertical", 49, 2, 51, 2),
    Sketcher.Constraint("Vertical", 45, 2, 54, 2),
    Sketcher.Constraint("Vertical", 58, 2, 59, 2),
    Sketcher.Constraint("Vertical", 55, 2, 67, 2),
    Sketcher.Constraint("Vertical", 26, 2, 72, 2),
    Sketcher.Constraint("Vertical", 73, 2, 75, 2),
    Sketcher.Constraint("Vertical", 74, 2, 76, 2),
    Sketcher.Constraint("Vertical", 78, 2, 79, 2),
    Sketcher.Constraint("Vertical", 77, 2, 82, 2),
    Sketcher.Constraint("Vertical", 79, 2, 83, 2),
    Sketcher.Constraint("Equal", 58, 70),
    Sketcher.Constraint("Equal", 68, 71),
    Sketcher.Constraint("Distance", 9, 8.0),
    Sketcher.Constraint("DistanceY", -1, 1, 0, 2, 27.0),
    Sketcher.Constraint("DistanceX", -1, 1, 14, 2, 28.009699),
    Sketcher.Constraint("DistanceY", -1, 1, 14, 2, 20.864099),
    Sketcher.Constraint("DistanceX", -1, 1, 24, 2, 34.145601),
    Sketcher.Constraint("Distance", 62, 2.66062),
    Sketcher.Constraint("Distance", 65, 6.66062),
    Sketcher.Constraint("DistanceX", 1, 2, 1, 1, 2.579552),
    Sketcher.Constraint("DistanceX", 6, 1, 6, 2, 5.148095),
    Sketcher.Constraint("DistanceX", 25, 2, 25, 1, 9.443376),
    Sketcher.Constraint("DistanceX", 81, 1, 81, 2, 8.046956),
    Sketcher.Constraint("DistanceY", 23, 1, 23, 2, 7.029437),
    Sketcher.Constraint("DistanceX", -1, 1, 1, 2, 38.844361),
    Sketcher.Constraint("DistanceY", -1, 1, 21, 2, 13.793031),
    Sketcher.Constraint("DistanceY", -1, 1, 27, 2, 5.994041),
    Sketcher.Constraint("DistanceY", 36, 2, -1, 1, 6.692251),
    Sketcher.Constraint("DistanceY", 40, 2, -1, 1, 14.49124),
    Sketcher.Constraint("DistanceY", 76, 2, -1, 1, 6.005959),
])
pocket3 = body.newObject("PartDesign::Pocket", "Pocket002")
pocket3.Profile = sketch4
pocket3.Type = "ThroughAll"
body2 = doc.addObject("PartDesign::Body", "Body001")

# Sketch on YZ plane
sketch5 = body2.newObject("Sketcher::SketchObject", "Sketch004")
sketch5.AttachmentSupport = (doc.getObject("YZ_Plane001"), [""])
sketch5.MapMode = "FlatFace"
sketch5.AttachmentOffset = App.Placement(V(0, 0, 5), App.Rotation())
sketch5.addGeometry([
    Part.LineSegment(V(41.4, -21.9, 0), V(36.3, -27, 0)),
    Part.LineSegment(V(36.3, -27, 0), V(39.1, -27, 0)),
    Part.LineSegment(V(39.1, -27, 0), V(41.4, -24.7, 0)),
    Part.LineSegment(V(41.4, -24.7, 0), V(41.4, -21.9, 0)),
], False)
sketch5.addConstraint([
    Sketcher.Constraint("Coincident", 0, 2, 1, 1),
    Sketcher.Constraint("Coincident", 1, 2, 2, 1),
    Sketcher.Constraint("Coincident", 2, 2, 3, 1),
    Sketcher.Constraint("Coincident", 3, 2, 0, 1),
    Sketcher.Constraint("Horizontal", 1),
    Sketcher.Constraint("Vertical", 3),
    Sketcher.Constraint("Parallel", 0, 2),
    Sketcher.Constraint("Equal", 1, 3),
    Sketcher.Constraint("DistanceY", 0, 2, -1, 1, 27.0),
    Sketcher.Constraint("DistanceX", 1, 1, 1, 2, 2.828427),
    Sketcher.Constraint("DistanceX", -1, 1, 0, 2, 36.275818),
    Sketcher.Constraint("Distance", 0, 7.280505),
])
pad2 = body2.newObject("PartDesign::Pad", "Pad001")
pad2.Profile = sketch5
pad2.Length = 30
pad2.Reversed = True

doc.recompute()
